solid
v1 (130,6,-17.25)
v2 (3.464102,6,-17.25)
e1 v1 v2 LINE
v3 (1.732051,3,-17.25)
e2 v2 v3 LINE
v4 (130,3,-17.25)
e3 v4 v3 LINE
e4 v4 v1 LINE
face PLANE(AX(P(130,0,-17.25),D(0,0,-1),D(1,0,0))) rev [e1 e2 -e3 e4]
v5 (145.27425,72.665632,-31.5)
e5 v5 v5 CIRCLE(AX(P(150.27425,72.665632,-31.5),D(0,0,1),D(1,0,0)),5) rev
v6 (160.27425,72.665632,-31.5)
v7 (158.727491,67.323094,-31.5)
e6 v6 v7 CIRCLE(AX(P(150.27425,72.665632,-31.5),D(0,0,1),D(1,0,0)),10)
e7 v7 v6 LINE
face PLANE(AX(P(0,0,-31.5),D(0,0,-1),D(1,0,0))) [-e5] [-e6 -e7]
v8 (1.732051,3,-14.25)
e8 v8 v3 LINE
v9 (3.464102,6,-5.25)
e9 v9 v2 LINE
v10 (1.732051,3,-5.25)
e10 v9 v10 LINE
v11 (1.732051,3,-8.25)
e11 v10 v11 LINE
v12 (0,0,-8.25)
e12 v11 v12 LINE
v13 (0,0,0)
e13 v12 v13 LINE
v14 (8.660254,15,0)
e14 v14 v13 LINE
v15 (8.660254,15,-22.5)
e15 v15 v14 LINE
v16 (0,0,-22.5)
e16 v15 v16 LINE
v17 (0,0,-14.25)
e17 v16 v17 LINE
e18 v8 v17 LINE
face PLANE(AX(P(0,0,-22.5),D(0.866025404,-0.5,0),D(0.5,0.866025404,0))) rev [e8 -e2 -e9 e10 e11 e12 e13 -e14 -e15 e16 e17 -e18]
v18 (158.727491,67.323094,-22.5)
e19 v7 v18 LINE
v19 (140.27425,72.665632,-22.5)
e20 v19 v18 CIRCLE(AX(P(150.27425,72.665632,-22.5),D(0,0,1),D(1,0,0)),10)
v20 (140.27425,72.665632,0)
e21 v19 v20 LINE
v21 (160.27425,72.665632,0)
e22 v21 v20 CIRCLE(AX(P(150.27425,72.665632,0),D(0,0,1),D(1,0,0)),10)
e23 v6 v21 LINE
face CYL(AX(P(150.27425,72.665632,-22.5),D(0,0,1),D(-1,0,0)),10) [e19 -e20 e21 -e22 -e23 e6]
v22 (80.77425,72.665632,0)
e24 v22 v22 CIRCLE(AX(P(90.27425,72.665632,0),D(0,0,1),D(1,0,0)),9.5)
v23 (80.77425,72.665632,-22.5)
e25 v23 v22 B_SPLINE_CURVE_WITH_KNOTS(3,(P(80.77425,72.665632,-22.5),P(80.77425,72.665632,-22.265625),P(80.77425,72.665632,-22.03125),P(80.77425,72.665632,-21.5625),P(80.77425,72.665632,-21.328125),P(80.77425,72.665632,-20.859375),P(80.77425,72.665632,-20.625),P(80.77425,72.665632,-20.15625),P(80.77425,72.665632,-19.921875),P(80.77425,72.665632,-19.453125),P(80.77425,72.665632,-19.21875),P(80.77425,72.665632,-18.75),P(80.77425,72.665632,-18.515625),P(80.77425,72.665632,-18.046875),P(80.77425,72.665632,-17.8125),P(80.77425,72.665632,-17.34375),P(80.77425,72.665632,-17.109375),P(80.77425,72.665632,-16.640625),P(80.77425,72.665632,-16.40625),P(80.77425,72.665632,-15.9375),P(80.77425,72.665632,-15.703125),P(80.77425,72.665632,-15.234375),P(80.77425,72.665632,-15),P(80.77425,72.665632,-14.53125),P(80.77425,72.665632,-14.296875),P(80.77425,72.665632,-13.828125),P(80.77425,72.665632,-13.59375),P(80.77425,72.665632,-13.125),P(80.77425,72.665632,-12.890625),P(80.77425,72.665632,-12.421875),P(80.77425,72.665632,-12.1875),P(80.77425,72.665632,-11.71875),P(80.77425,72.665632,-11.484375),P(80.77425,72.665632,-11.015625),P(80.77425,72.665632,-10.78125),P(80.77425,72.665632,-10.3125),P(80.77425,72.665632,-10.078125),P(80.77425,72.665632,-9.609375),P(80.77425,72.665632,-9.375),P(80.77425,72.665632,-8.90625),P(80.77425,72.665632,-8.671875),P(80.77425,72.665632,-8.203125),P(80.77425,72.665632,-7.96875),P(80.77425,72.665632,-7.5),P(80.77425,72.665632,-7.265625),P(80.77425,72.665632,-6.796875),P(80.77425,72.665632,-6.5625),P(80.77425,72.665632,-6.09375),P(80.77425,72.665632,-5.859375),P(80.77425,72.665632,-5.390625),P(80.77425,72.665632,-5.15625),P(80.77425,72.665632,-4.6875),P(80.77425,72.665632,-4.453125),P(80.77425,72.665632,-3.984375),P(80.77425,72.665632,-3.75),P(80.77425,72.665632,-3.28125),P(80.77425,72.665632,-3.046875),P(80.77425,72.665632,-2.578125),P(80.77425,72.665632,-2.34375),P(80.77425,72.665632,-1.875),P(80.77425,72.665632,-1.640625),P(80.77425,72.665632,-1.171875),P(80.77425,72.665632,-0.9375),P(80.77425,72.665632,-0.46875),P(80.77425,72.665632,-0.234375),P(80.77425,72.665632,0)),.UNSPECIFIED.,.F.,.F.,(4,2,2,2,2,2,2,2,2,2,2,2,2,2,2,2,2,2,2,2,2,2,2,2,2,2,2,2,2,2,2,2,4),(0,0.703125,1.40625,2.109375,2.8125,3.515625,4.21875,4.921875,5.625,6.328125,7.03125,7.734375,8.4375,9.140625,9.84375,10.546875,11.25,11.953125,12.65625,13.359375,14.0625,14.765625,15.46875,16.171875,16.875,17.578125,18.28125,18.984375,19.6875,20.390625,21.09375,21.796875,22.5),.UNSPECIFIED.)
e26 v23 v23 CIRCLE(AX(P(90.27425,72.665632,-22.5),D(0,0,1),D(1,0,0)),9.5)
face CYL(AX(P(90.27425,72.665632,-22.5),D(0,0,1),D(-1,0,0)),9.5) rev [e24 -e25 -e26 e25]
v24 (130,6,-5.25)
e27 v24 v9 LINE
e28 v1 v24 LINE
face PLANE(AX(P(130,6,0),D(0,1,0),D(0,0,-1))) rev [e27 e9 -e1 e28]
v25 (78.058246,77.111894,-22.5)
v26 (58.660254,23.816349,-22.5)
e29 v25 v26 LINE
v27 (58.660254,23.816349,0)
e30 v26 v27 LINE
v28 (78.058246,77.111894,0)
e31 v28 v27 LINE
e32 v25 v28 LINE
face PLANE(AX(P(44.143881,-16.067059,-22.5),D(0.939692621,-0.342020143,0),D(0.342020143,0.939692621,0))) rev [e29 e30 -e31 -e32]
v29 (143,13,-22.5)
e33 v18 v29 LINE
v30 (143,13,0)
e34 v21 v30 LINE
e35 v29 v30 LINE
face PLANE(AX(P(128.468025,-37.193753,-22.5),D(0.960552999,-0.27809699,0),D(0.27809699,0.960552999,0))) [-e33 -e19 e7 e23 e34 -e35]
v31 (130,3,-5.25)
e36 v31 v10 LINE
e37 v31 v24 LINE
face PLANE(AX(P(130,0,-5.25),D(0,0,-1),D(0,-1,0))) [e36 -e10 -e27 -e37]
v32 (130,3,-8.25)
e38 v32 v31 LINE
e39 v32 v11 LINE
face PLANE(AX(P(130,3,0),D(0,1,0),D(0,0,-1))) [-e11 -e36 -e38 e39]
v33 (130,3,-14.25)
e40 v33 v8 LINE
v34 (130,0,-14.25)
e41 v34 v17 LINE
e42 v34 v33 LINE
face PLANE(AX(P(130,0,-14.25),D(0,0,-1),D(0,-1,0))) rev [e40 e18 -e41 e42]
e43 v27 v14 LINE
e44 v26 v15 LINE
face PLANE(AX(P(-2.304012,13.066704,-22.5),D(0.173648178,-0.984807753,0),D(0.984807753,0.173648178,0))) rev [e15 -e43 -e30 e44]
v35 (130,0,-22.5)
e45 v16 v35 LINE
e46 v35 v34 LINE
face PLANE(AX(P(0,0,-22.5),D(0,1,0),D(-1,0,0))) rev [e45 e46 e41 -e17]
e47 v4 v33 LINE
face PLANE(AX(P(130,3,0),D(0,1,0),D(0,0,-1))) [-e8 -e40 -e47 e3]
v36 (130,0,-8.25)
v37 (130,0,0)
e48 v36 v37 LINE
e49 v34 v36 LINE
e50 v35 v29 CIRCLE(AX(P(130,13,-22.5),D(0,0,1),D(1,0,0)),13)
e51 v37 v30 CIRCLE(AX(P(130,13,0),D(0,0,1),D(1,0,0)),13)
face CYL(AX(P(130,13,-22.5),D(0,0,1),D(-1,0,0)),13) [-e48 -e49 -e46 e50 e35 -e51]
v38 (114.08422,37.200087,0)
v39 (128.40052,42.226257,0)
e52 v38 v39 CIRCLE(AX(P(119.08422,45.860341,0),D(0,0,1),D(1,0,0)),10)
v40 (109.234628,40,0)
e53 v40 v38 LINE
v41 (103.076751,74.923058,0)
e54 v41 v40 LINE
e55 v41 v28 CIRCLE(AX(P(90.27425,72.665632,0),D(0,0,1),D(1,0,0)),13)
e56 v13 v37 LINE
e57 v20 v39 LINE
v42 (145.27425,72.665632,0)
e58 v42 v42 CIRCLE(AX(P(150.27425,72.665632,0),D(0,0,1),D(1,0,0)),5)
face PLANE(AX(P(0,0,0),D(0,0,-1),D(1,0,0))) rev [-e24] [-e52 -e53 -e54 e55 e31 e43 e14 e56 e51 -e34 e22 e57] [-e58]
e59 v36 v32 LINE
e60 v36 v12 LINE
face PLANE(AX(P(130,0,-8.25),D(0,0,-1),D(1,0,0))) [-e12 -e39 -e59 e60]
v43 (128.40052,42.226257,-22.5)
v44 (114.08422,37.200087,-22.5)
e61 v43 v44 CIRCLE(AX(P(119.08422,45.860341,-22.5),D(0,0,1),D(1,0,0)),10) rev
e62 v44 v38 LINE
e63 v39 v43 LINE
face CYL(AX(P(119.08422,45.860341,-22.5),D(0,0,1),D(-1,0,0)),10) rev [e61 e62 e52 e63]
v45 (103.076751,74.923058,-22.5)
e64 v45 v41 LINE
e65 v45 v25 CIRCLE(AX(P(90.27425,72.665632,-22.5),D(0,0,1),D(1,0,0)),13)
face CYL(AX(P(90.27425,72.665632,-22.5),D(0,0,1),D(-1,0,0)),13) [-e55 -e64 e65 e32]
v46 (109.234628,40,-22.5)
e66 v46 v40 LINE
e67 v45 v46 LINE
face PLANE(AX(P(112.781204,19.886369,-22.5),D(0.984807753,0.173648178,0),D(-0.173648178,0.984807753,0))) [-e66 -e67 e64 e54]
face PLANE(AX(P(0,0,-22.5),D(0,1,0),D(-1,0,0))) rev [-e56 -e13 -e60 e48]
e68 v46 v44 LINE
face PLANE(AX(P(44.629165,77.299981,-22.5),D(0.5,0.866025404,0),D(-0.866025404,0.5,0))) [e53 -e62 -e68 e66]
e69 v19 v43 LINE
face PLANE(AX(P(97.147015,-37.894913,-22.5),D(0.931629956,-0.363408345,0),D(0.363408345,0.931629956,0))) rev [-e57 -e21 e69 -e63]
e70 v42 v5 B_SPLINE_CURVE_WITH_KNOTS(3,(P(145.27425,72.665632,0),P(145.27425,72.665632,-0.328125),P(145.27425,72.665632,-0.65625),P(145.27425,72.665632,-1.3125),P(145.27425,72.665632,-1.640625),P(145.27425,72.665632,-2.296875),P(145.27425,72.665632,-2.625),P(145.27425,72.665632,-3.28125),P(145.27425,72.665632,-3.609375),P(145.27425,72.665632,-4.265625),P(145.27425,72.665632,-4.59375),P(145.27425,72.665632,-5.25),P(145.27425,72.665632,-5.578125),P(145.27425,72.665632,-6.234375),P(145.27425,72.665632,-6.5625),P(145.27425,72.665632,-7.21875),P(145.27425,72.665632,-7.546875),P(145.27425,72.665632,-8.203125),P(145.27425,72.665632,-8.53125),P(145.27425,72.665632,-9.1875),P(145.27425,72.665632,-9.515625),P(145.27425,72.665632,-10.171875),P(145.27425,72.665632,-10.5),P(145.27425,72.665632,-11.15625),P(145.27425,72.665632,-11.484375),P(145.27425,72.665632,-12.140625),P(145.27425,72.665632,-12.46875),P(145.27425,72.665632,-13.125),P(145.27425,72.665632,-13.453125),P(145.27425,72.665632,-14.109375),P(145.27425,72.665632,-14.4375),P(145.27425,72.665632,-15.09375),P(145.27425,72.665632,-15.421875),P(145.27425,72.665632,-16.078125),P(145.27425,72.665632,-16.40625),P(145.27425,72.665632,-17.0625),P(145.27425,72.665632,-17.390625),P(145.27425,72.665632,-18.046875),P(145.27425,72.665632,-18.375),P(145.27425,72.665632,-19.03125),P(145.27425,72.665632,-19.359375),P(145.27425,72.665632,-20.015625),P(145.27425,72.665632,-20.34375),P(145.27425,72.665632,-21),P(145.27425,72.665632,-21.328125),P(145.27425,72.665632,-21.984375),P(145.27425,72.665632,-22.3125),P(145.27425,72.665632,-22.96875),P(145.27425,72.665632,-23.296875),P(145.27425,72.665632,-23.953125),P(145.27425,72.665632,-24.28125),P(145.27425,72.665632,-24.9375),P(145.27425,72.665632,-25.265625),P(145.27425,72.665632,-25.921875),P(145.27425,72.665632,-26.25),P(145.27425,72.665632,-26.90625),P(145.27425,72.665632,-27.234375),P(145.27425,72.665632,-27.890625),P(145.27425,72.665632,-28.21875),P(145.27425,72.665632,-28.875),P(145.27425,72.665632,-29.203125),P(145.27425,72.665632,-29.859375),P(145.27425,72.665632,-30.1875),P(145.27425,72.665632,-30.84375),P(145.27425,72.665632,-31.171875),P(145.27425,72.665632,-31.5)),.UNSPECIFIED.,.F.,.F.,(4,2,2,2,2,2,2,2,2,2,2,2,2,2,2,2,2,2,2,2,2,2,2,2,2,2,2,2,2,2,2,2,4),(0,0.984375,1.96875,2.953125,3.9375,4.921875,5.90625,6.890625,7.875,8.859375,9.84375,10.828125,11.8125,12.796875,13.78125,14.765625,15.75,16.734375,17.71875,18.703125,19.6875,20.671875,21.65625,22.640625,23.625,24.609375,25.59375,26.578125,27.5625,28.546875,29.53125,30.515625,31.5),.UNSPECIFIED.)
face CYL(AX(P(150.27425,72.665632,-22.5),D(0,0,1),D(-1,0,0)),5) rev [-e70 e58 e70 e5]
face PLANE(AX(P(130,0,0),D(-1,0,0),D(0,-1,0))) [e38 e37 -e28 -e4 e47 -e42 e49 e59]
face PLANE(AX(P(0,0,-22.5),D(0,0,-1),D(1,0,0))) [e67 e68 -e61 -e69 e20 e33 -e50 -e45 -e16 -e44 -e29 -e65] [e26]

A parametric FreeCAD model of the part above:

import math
import FreeCAD as App
import Part
import Sketcher
from FreeCAD import Vector
Q = App.Units.Quantity


def edges_at(feature, points):
    """Names of the edges that pass closest to the given points."""
    edges = feature.Shape.Edges
    near = lambda p: min(range(len(edges)), key=lambda i: edges[i].distToShape(Part.Vertex(*p))[0])
    return sorted({f"Edge{near(p) + 1}" for p in points})


def add_polygon(sketch, points):
    """Adds a closed chain of lines whose ends are joined by coincident constraints."""
    first, n = sketch.GeometryCount, len(points)
    for a, b in zip(points, points[1:] + points[:1]):
        sketch.addGeometry(Part.LineSegment(App.Vector(*a, 0), App.Vector(*b, 0)), False)
    for i in range(n):
        sketch.addConstraint(Sketcher.Constraint("Coincident", first + i, 2, first + (i + 1) % n, 1))

doc = App.newDocument("Part")
params = doc.addObject("Spreadsheet::Sheet", "Params")
for row, (alias, value) in enumerate([
    ("sketch1_diameter", "19 mm"),
    ("sketch1_diameter2", "10 mm"),
    ("sketch1_radius", "13 mm"),
    ("sketch1_radius2", "10 mm"),
    ("sketch1_width", "130 mm"),
    ("pad1_length", "22.5 mm"),
    ("sketch2_width", "3 mm"),
    ("sketch2_height", "6 mm"),
    ("pocket1_length", "130 mm"),
    ("fillet_radius", "10 mm"),
    ("sketch3_diameter", "10 mm"),
    ("sketch3_radius", "10 mm"),
    ("pad2_length", "9 mm"),
], start=1):
    params.set(f"A{row}", alias)
    params.set(f"B{row}", "=" + value)
    params.setAlias(f"B{row}", alias)

body = doc.addObject("PartDesign::Body", "Body")

# Sketch on XY plane
sketch1 = doc.addObject("Sketcher::SketchObject", "Sketch")
body.addObject(sketch1)
sketch1.AttachmentSupport = (doc.XY_Plane, [""])
sketch1.MapMode = "FlatFace"
sketch1.addGeometry(Part.LineSegment(Vector(78, 77, 0), Vector(59, 24, 0)), False)
sketch1.addGeometry(Part.LineSegment(Vector(59, 24, 0), Vector(9, 15, 0)), False)
sketch1.addGeometry(Part.LineSegment(Vector(9, 15, 0), Vector(0, 0, 0)), False)
sketch1.addGeometry(Part.LineSegment(Vector(0, 0, 0), Vector(130, 0, 0)), False)
sketch1.addGeometry(Part.ArcOfCircle(Part.Circle(Vector(130, 13, 0), Vector(0, 0, 1), 13), math.radians(-90), math.radians(0)), False)
sketch1.addGeometry(Part.LineSegment(Vector(143, 13, 0), Vector(159, 67, 0)), False)
sketch1.addGeometry(Part.LineSegment(Vector(159, 67, 0), Vector(160, 73, 0)), False)
sketch1.addGeometry(Part.ArcOfCircle(Part.Circle(Vector(150, 73, 0), Vector(0, 0, 1), 10), math.radians(0), math.radians(180)), False)
sketch1.addGeometry(Part.LineSegment(Vector(140, 73, 0), Vector(124, 31, 0)), False)
sketch1.addGeometry(Part.LineSegment(Vector(124, 31, 0), Vector(109, 40, 0)), False)
sketch1.addGeometry(Part.LineSegment(Vector(109, 40, 0), Vector(103, 75, 0)), False)
sketch1.addGeometry(Part.ArcOfCircle(Part.Circle(Vector(90, 73, 0), Vector(0, 0, 1), 13), math.radians(10), math.radians(160)), False)
sketch1.addGeometry(Part.Circle(Vector(90, 73, 0), Vector(0, 0, 1), 10), False)
sketch1.addGeometry(Part.Circle(Vector(150, 73, 0), Vector(0, 0, 1), 5), False)
sketch1.addConstraint(Sketcher.Constraint("Coincident", 0, 2, 1, 1))
sketch1.addConstraint(Sketcher.Constraint("Coincident", 1, 2, 2, 1))
sketch1.addConstraint(Sketcher.Constraint("Coincident", 2, 2, 3, 1))
sketch1.addConstraint(Sketcher.Constraint("Tangent", 3, 2, 4, 1))
sketch1.addConstraint(Sketcher.Constraint("Coincident", 4, 2, 5, 1))
sketch1.addConstraint(Sketcher.Constraint("Coincident", 5, 2, 6, 1))
sketch1.addConstraint(Sketcher.Constraint("Coincident", 6, 2, 7, 1))
sketch1.addConstraint(Sketcher.Constraint("Coincident", 7, 2, 8, 1))
sketch1.addConstraint(Sketcher.Constraint("Coincident", 8, 2, 9, 1))
sketch1.addConstraint(Sketcher.Constraint("Coincident", 9, 2, 10, 1))
sketch1.addConstraint(Sketcher.Constraint("Tangent", 10, 2, 11, 1))
sketch1.addConstraint(Sketcher.Constraint("Tangent", 11, 2, 0, 1))
sketch1.addConstraint(Sketcher.Constraint("Horizontal", 3))
sketch1.addConstraint(Sketcher.Constraint("Coincident", 2, 2, -1, 1))
sketch1.addConstraint(Sketcher.Constraint("Coincident", 12, 3, 11, 3))
sketch1.addConstraint(Sketcher.Constraint("Coincident", 13, 3, 7, 3))
sketch1.addConstraint(Sketcher.Constraint("Equal", 4, 11))
sketch1.addConstraint(Sketcher.Constraint("Parallel", 5, 6))
sketch1.addConstraint(Sketcher.Constraint("Perpendicular", 2, 9))
sketch1.addConstraint(Sketcher.Constraint("Perpendicular", 1, 10))
sketch1.addConstraint(Sketcher.Constraint("Horizontal", 7, 3, 11, 3))
sketch1.addConstraint(Sketcher.Constraint("Horizontal", 13, 3, 6, 2))
sketch1.addConstraint(Sketcher.Constraint("Horizontal", 6, 2, 7, 2))
sketch1.addConstraint(Sketcher.Constraint("Diameter", 12, 19.0))
sketch1.addConstraint(Sketcher.Constraint("Diameter", 13, 10.0))
sketch1.addConstraint(Sketcher.Constraint("Radius", 4, 13.0))
sketch1.addConstraint(Sketcher.Constraint("Radius", 7, 10.0))
sketch1.addConstraint(Sketcher.Constraint("DistanceX", 3, 1, 3, 2, 130.0))
sketch1.addConstraint(Sketcher.Constraint("Angle", 0, Q("-110 deg")))
sketch1.addConstraint(Sketcher.Constraint("Angle", 1, Q("-170 deg")))
sketch1.addConstraint(Sketcher.Constraint("Angle", 2, Q("-120 deg")))
sketch1.addConstraint(Sketcher.Constraint("DistanceY", -1, 1, 1, 2, 15.0))
sketch1.addConstraint(Sketcher.Constraint("DistanceY", -1, 1, 4, 2, 13.0))
sketch1.addConstraint(Sketcher.Constraint("DistanceY", -1, 1, 9, 2, 40.0))
sketch1.addConstraint(Sketcher.Constraint("DistanceX", 11, 3, 7, 3, 60.0))
sketch1.addConstraint(Sketcher.Constraint("DistanceX", 1, 2, 0, 2, 50.0))
sketch1.addConstraint(Sketcher.Constraint("Distance", 5, 56.553979))
sketch1.addConstraint(Sketcher.Constraint("Distance", 6, 5.56194))
sketch1.addConstraint(Sketcher.Constraint("DistanceY", 8, 2, 7, 2, 41.28786))
sketch1.setExpression("Constraints[23]", "Params.sketch1_diameter")
sketch1.setExpression("Constraints[24]", "Params.sketch1_diameter2")
sketch1.setExpression("Constraints[25]", "Params.sketch1_radius")
sketch1.setExpression("Constraints[26]", "Params.sketch1_radius2")
sketch1.setExpression("Constraints[27]", "Params.sketch1_width")
pad1 = doc.addObject("PartDesign::Pad", "Pad")
body.addObject(pad1)
pad1.Profile = sketch1
pad1.setExpression("Length", "Params.pad1_length")

# Sketch on YZ plane
sketch2 = doc.addObject("Sketcher::SketchObject", "Sketch001")
body.addObject(sketch2)
sketch2.AttachmentSupport = (doc.YZ_Plane, [""])
sketch2.MapMode = "FlatFace"
add_polygon(sketch2, [(6, 5.2), (3, 5.2), (3, 8.2), (0, 8.2), (0, 14.2), (3, 14.2), (3, 17.2), (6, 17.2)])  # lines 0-7
sketch2.addConstraint(Sketcher.Constraint("Horizontal", 0))
sketch2.addConstraint(Sketcher.Constraint("Vertical", 1))
sketch2.addConstraint(Sketcher.Constraint("Horizontal", 2))
sketch2.addConstraint(Sketcher.Constraint("Vertical", 3))
sketch2.addConstraint(Sketcher.Constraint("Horizontal", 4))
sketch2.addConstraint(Sketcher.Constraint("Vertical", 5))
sketch2.addConstraint(Sketcher.Constraint("Horizontal", 6))
sketch2.addConstraint(Sketcher.Constraint("Vertical", 7))
sketch2.addConstraint(Sketcher.Constraint("PointOnObject", 2, 2, -2))
sketch2.addConstraint(Sketcher.Constraint("Vertical", 1, 2, 4, 2))
sketch2.addConstraint(Sketcher.Constraint("Equal", 0, 2))
sketch2.addConstraint(Sketcher.Constraint("Equal", 6, 1))
sketch2.addConstraint(Sketcher.Constraint("Equal", 1, 5))
sketch2.addConstraint(Sketcher.Constraint("DistanceX", 0, 2, 0, 1, 3.0))
sketch2.addConstraint(Sketcher.Constraint("DistanceY", 3, 1, 3, 2, 6.0))
sketch2.addConstraint(Sketcher.Constraint("DistanceY", -1, 1, 0, 2, 5.25))
sketch2.setExpression("Constraints[21]", "Params.sketch2_width")
sketch2.setExpression("Constraints[22]", "Params.sketch2_height")
pocket1 = doc.addObject("PartDesign::Pocket", "Pocket")
body.addObject(pocket1)
pocket1.Profile = sketch2
pocket1.setExpression("Length", "Params.pocket1_length")
pocket1.Reversed = True
doc.recompute()

fillet = doc.addObject("PartDesign::Fillet", "Fillet")
body.addObject(fillet)
fillet.Base = (pocket1, edges_at(pocket1, [(124.169, 31.378, 11.25)]))
fillet.setExpression("Radius", "Params.fillet_radius")

# Sketch on XY plane
sketch3 = doc.addObject("Sketcher::SketchObject", "Sketch002")
body.addObject(sketch3)
sketch3.AttachmentSupport = (doc.XY_Plane, [""])
sketch3.MapMode = "FlatFace"
sketch3.AttachmentOffset = App.Placement(Vector(0, 0, 22.5), App.Rotation())
sketch3.addGeometry(Part.LineSegment(Vector(159, 67, 0), Vector(160, 73, 0)), False)
sketch3.addGeometry(Part.ArcOfCircle(Part.Circle(Vector(150, 73, 0), Vector(0, 0, 1), 10), math.radians(0), math.radians(180)), False)
sketch3.addGeometry(Part.ArcOfCircle(Part.Circle(Vector(150, 73, 0), Vector(0, 0, 1), 10), math.radians(-180), math.radians(-32)), False)
sketch3.addGeometry(Part.Circle(Vector(150, 73, 0), Vector(0, 0, 1), 5), False)
sketch3.addConstraint(Sketcher.Constraint("Coincident", 0, 2, 1, 1))
sketch3.addConstraint(Sketcher.Constraint("Tangent", 1, 2, 2, 1))
sketch3.addConstraint(Sketcher.Constraint("Coincident", 2, 2, 0, 1))
sketch3.addConstraint(Sketcher.Constraint("Coincident", 3, 3, 1, 3))
sketch3.addConstraint(Sketcher.Constraint("Equal", 1, 2))
sketch3.addConstraint(Sketcher.Constraint("Horizontal", 3, 3, 0, 2))
sketch3.addConstraint(Sketcher.Constraint("Horizontal", 0, 2, 1, 2))
sketch3.addConstraint(Sketcher.Constraint("Diameter", 3, 10.0))
sketch3.addConstraint(Sketcher.Constraint("Radius", 1, 10.0))
sketch3.addConstraint(Sketcher.Constraint("Distance", 0, 5.56194))
sketch3.addConstraint(Sketcher.Constraint("DistanceX", -1, 1, 1, 3, 150.27425))
sketch3.addConstraint(Sketcher.Constraint("DistanceY", -1, 1, 1, 3, 72.665632))
sketch3.setExpression("Constraints[7]", "Params.sketch3_diameter")
sketch3.setExpression("Constraints[8]", "Params.sketch3_radius")
pad2 = doc.addObject("PartDesign::Pad", "Pad001")
body.addObject(pad2)
pad2.Profile = sketch3
pad2.setExpression("Length", "Params.pad2_length")
body2 = doc.addObject("PartDesign::Body", "Body001")
doc.recompute()

mirroring = doc.addObject("Part::Mirroring", "Mirroring")
mirroring.Source = body
mirroring.Base = Vector(0, 0, 0)
mirroring.Normal = Vector(0, 0, 1)
body2.BaseFeature = mirroring
doc.recompute()
body.Visibility = False
mirroring.Visibility = False

doc.recompute()
